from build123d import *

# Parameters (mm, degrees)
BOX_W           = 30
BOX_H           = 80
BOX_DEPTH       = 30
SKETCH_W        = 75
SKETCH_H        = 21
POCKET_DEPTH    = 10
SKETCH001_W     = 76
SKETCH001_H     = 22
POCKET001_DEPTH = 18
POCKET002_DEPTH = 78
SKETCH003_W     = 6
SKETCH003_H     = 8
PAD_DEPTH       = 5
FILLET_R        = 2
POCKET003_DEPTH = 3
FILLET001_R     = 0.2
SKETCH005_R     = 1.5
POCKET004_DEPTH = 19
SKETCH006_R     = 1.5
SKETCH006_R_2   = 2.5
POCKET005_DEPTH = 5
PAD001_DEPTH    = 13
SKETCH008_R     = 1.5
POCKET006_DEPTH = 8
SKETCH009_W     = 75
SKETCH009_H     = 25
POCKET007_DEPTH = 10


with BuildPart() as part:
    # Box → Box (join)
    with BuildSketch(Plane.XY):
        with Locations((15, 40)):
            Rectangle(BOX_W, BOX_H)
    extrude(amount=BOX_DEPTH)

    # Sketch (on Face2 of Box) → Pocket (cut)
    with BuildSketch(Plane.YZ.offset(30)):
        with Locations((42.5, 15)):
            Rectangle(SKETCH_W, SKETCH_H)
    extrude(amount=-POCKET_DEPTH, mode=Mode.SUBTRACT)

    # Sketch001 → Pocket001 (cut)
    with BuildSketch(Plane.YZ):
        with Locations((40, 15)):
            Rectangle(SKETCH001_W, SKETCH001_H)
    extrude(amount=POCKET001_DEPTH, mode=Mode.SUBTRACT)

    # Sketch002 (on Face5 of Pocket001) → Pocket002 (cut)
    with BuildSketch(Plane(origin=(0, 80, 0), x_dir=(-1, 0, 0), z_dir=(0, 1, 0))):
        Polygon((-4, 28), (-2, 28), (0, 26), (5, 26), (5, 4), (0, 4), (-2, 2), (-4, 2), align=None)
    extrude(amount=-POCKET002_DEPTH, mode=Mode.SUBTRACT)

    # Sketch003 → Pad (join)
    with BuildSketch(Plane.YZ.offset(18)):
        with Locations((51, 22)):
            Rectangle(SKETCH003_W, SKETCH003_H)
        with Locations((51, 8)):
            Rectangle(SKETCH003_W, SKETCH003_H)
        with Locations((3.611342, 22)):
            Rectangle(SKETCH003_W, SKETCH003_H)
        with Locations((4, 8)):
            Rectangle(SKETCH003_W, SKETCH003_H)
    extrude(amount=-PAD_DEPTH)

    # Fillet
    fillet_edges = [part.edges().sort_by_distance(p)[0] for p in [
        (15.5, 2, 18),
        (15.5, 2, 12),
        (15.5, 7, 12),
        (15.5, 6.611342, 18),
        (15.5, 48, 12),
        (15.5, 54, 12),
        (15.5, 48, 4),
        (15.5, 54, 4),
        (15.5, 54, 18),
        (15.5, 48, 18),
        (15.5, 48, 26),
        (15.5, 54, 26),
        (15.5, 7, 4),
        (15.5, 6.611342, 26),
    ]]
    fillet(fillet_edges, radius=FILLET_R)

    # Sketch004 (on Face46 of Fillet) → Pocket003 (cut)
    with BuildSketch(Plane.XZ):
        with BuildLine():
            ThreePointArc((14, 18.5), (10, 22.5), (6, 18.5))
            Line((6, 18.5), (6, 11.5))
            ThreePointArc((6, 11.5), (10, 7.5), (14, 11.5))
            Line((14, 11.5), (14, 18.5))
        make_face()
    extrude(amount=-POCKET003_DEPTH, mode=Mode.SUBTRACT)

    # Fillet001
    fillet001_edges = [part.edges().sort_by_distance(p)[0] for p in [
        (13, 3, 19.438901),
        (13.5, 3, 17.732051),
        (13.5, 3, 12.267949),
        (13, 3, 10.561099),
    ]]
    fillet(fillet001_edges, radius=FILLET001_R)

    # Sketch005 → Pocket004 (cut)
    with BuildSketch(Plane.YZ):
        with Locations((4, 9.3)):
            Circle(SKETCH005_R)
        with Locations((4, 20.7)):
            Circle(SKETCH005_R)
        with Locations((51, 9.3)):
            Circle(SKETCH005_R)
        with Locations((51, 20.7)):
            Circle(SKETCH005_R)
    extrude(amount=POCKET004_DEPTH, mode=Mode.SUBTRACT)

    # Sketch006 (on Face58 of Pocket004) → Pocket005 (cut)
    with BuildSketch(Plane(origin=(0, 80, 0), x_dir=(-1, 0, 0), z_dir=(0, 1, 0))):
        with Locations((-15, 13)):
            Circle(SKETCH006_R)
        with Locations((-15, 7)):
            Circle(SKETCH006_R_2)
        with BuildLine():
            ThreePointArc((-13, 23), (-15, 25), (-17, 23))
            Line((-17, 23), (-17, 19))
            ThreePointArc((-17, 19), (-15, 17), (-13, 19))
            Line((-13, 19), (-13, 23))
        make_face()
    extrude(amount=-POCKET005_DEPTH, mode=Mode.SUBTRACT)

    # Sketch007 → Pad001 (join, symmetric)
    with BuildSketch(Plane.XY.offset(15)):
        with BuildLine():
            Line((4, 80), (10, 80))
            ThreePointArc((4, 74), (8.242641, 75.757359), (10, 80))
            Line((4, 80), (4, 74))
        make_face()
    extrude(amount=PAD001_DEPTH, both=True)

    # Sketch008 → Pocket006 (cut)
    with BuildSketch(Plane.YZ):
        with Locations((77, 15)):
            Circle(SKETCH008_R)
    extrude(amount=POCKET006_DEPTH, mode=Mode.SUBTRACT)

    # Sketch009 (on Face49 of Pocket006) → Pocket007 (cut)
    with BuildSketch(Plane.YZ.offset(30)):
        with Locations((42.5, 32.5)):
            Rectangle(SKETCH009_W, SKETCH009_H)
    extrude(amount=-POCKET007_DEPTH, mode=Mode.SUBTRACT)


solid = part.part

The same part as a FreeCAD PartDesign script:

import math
import FreeCAD as App
import Part
import Sketcher
from FreeCAD import Vector


def edges_at(feature, points):
    """Names of the edges that pass closest to the given points."""
    edges = feature.Shape.Edges
    near = lambda p: min(range(len(edges)), key=lambda i: edges[i].distToShape(Part.Vertex(*p))[0])
    return sorted({f"Edge{near(p) + 1}" for p in points})


def add_polygon(sketch, points):
    """Adds a closed chain of lines whose ends are joined by coincident constraints."""
    first, n = sketch.GeometryCount, len(points)
    for a, b in zip(points, points[1:] + points[:1]):
        sketch.addGeometry(Part.LineSegment(App.Vector(*a, 0), App.Vector(*b, 0)), False)
    for i in range(n):
        sketch.addConstraint(Sketcher.Constraint("Coincident", first + i, 2, first + (i + 1) % n, 1))

doc = App.newDocument("Part")
body = doc.addObject("PartDesign::Body", "Body")

sketch1 = doc.addObject("Sketcher::SketchObject", "Sketch")
body.addObject(sketch1)
sketch1.AttachmentSupport = (doc.XY_Plane, [""])
sketch1.MapMode = "FlatFace"
add_polygon(sketch1, [(0, 80), (0, 0), (30, 0), (30, 80)])
sketch1.addConstraint([
    Sketcher.Constraint("Vertical", 0),
    Sketcher.Constraint("Horizontal", 1),
    Sketcher.Constraint("Vertical", 2),
    Sketcher.Constraint("Horizontal", 3),
    Sketcher.Constraint("Coincident", 0, 2, -1, 1),
    Sketcher.Constraint("DistanceX", 1, 1, 1, 2, 30.0),
    Sketcher.Constraint("DistanceY", 0, 2, 0, 1, 80.0),
])
pad1 = doc.addObject("PartDesign::Pad", "Pad")
body.addObject(pad1)
pad1.Profile = sketch1
pad1.Length = 30

sketch2 = doc.addObject("Sketcher::SketchObject", "Sketch001")
body.addObject(sketch2)
sketch2.AttachmentSupport = (doc.YZ_Plane, [""])
sketch2.MapMode = "FlatFace"
sketch2.AttachmentOffset = App.Placement(Vector(0, 0, 30), App.Rotation())
add_polygon(sketch2, [(5, 26), (5, 4), (80, 4), (80, 26)])
sketch2.addConstraint([
    Sketcher.Constraint("Vertical", 0),
    Sketcher.Constraint("Horizontal", 1),
    Sketcher.Constraint("Vertical", 2),
    Sketcher.Constraint("Horizontal", 3),
    Sketcher.Constraint("DistanceX", 1, 1, 1, 2, 75.0),
    Sketcher.Constraint("DistanceY", 0, 2, 0, 1, 21.0),
    Sketcher.Constraint("DistanceX", -1, 1, 0, 2, 5.0),
    Sketcher.Constraint("DistanceY", -1, 1, 0, 2, 4.5),
])
pocket1 = doc.addObject("PartDesign::Pocket", "Pocket")
body.addObject(pocket1)
pocket1.Profile = sketch2
pocket1.Length = 10

sketch3 = doc.addObject("Sketcher::SketchObject", "Sketch002")
body.addObject(sketch3)
sketch3.AttachmentSupport = (doc.YZ_Plane, [""])
sketch3.MapMode = "FlatFace"
add_polygon(sketch3, [(2, 26), (2, 4), (78, 4), (78, 26)])
sketch3.addConstraint([
    Sketcher.Constraint("Vertical", 0),
    Sketcher.Constraint("Horizontal", 1),
    Sketcher.Constraint("Vertical", 2),
    Sketcher.Constraint("Horizontal", 3),
    Sketcher.Constraint("DistanceX", 1, 1, 1, 2, 76.0),
    Sketcher.Constraint("DistanceY", 0, 2, 0, 1, 22.0),
    Sketcher.Constraint("DistanceX", -1, 1, 0, 2, 2.0),
    Sketcher.Constraint("DistanceY", -1, 1, 0, 2, 4.0),
])
pocket2 = doc.addObject("PartDesign::Pocket", "Pocket001")
body.addObject(pocket2)
pocket2.Profile = sketch3
pocket2.Length = 18
pocket2.Reversed = True

sketch4 = doc.addObject("Sketcher::SketchObject", "Sketch003")
body.addObject(sketch4)
sketch4.AttachmentSupport = (doc.XZ_Plane, [""])
sketch4.MapMode = "FlatFace"
sketch4.AttachmentOffset = App.Placement(Vector(0, 0, -80), App.Rotation())
add_polygon(sketch4, [(2, 28), (4, 28), (4, 2), (2, 2), (0, 4), (-5, 4), (-5, 26), (0, 26)])
sketch4.addConstraint([
    Sketcher.Constraint("Horizontal", 0),
    Sketcher.Constraint("Vertical", 1),
    Sketcher.Constraint("Horizontal", 2),
    Sketcher.Constraint("Horizontal", 4),
    Sketcher.Constraint("Vertical", 5),
    Sketcher.Constraint("Horizontal", 6),
    Sketcher.Constraint("PointOnObject", 3, 2, -2),
    Sketcher.Constraint("PointOnObject", 6, 2, -2),
    Sketcher.Constraint("Perpendicular", 3, 7),
    Sketcher.Constraint("Vertical", 2, 2, 7, 2),
    Sketcher.Constraint("Equal", 3, 7),
    Sketcher.Constraint("DistanceX", 0, 1, 0, 2, 2.0),
    Sketcher.Constraint("DistanceX", 4, 2, 4, 1, 5.0),
    Sketcher.Constraint("DistanceY", 1, 2, 1, 1, 26.0),
    Sketcher.Constraint("DistanceY", 5, 1, 5, 2, 22.0),
    Sketcher.Constraint("DistanceY", -1, 1, 0, 2, 28.0),
])
pocket3 = doc.addObject("PartDesign::Pocket", "Pocket002")
body.addObject(pocket3)
pocket3.Profile = sketch4
pocket3.Length = 78
pocket3.Reversed = True

sketch5 = doc.addObject("Sketcher::SketchObject", "Sketch004")
body.addObject(sketch5)
sketch5.AttachmentSupport = (doc.YZ_Plane, [""])
sketch5.MapMode = "FlatFace"
sketch5.AttachmentOffset = App.Placement(Vector(0, 0, 18), App.Rotation())
add_polygon(sketch5, [(48, 26), (48, 18), (54, 18), (54, 26)])
add_polygon(sketch5, [(48, 12), (48, 4), (54, 4), (54, 12)])
add_polygon(sketch5, [(1, 26), (1, 18), (7, 18), (7, 26)])
add_polygon(sketch5, [(1, 12), (1, 4), (7, 4), (7, 12)])
sketch5.addConstraint([
    Sketcher.Constraint("Vertical", 0),
    Sketcher.Constraint("Horizontal", 1),
    Sketcher.Constraint("Vertical", 2),
    Sketcher.Constraint("Horizontal", 3),
    Sketcher.Constraint("Vertical", 4),
    Sketcher.Constraint("Horizontal", 5),
    Sketcher.Constraint("Vertical", 6),
    Sketcher.Constraint("Horizontal", 7),
    Sketcher.Constraint("Vertical", 8),
    Sketcher.Constraint("Horizontal", 9),
    Sketcher.Constraint("Vertical", 10),
    Sketcher.Constraint("Horizontal", 11),
    Sketcher.Constraint("Vertical", 12),
    Sketcher.Constraint("Horizontal", 13),
    Sketcher.Constraint("Vertical", 14),
    Sketcher.Constraint("Horizontal", 15),
    Sketcher.Constraint("Horizontal", 1, 2, 8, 2),
    Sketcher.Constraint("Horizontal", 3, 2, 10, 2),
    Sketcher.Constraint("Horizontal", 5, 2, 12, 2),
    Sketcher.Constraint("Horizontal", 7, 2, 14, 2),
    Sketcher.Constraint("Vertical", 3, 2, 4, 2),
    Sketcher.Constraint("Vertical", 2, 2, 5, 2),
    Sketcher.Constraint("Equal", 7, 9),
    Sketcher.Constraint("Equal", 11, 13),
    Sketcher.Constraint("Equal", 2, 4),
    Sketcher.Constraint("DistanceX", 1, 1, 1, 2, 6.0),
    Sketcher.Constraint("DistanceY", 0, 2, 0, 1, 8.0),
    Sketcher.Constraint("DistanceX", -1, 1, 0, 2, 48.0),
    Sketcher.Constraint("DistanceY", -1, 1, 0, 2, 18.0),
    Sketcher.Constraint("DistanceY", -1, 1, 4, 2, 4.0),
    Sketcher.Constraint("DistanceX", -1, 1, 12, 2, 1.0),
    Sketcher.Constraint("DistanceX", -1, 1, 9, 2, 6.611342),
])
pad2 = doc.addObject("PartDesign::Pad", "Pad001")
body.addObject(pad2)
pad2.Profile = sketch5
pad2.Length = 5
pad2.Reversed = True
doc.recompute()

fillet = doc.addObject("PartDesign::Fillet", "Fillet")
body.addObject(fillet)
fillet.Base = (pad2, edges_at(pad2, [
    (15.5, 2, 18),
    (15.5, 2, 12),
    (15.5, 7, 12),
    (15.5, 6.611, 18),
    (15.5, 48, 12),
    (15.5, 54, 12),
    (15.5, 48, 4),
    (15.5, 54, 4),
    (15.5, 54, 18),
    (15.5, 48, 18),
    (15.5, 48, 26),
    (15.5, 54, 26),
    (15.5, 7, 4),
    (15.5, 6.611, 26),
]))
fillet.Radius = 2

sketch6 = doc.addObject("Sketcher::SketchObject", "Sketch005")
body.addObject(sketch6)
sketch6.AttachmentSupport = (doc.XZ_Plane, [""])
sketch6.MapMode = "FlatFace"
sketch6.addGeometry([
    Part.ArcOfCircle(Part.Circle(Vector(10, 18.5, 0), Vector(0, 0, 1), 4), math.radians(0), math.radians(180)),
    Part.LineSegment(Vector(6, 18.5, 0), Vector(6, 11.5, 0)),
    Part.ArcOfCircle(Part.Circle(Vector(10, 11.5, 0), Vector(0, 0, 1), 4), math.radians(180), math.radians(360)),
    Part.LineSegment(Vector(14, 11.5, 0), Vector(14, 18.5, 0)),
], False)
sketch6.addConstraint([
    Sketcher.Constraint("Tangent", 0, 2, 1, 1),
    Sketcher.Constraint("Tangent", 1, 2, 2, 1),
    Sketcher.Constraint("Tangent", 2, 2, 3, 1),
    Sketcher.Constraint("Tangent", 3, 2, 0, 1),
    Sketcher.Constraint("Vertical", 1),
    Sketcher.Constraint("Vertical", 3),
    Sketcher.Constraint("Radius", 0, 4.0),
    Sketcher.Constraint("DistanceY", 1, 2, 1, 1, 7.0),
    Sketcher.Constraint("DistanceX", -1, 1, 0, 3, 10.0),
    Sketcher.Constraint("DistanceY", -1, 1, 0, 3, 18.5),
])
pocket4 = doc.addObject("PartDesign::Pocket", "Pocket003")
body.addObject(pocket4)
pocket4.Profile = sketch6
pocket4.Length = 3
doc.recompute()

fillet2 = doc.addObject("PartDesign::Fillet", "Fillet001")
body.addObject(fillet2)
fillet2.Base = (pocket4, edges_at(pocket4, [
    (13, 3, 19.439),
    (13.5, 3, 17.732),
    (13.5, 3, 12.268),
    (13, 3, 10.561),
]))
fillet2.Radius = 0.2

sketch7 = doc.addObject("Sketcher::SketchObject", "Sketch006")
body.addObject(sketch7)
sketch7.AttachmentSupport = (doc.YZ_Plane, [""])
sketch7.MapMode = "FlatFace"
sketch7.addGeometry([
    Part.Circle(Vector(4, 9.3, 0), Vector(0, 0, 1), 1.5),
    Part.Circle(Vector(4, 20.7, 0), Vector(0, 0, 1), 1.5),
    Part.Circle(Vector(51, 9.3, 0), Vector(0, 0, 1), 1.5),
    Part.Circle(Vector(51, 20.7, 0), Vector(0, 0, 1), 1.5),
], False)
sketch7.addConstraint([
    Sketcher.Constraint("Equal", 0, 1),
    Sketcher.Constraint("Equal", 1, 2),
    Sketcher.Constraint("Equal", 2, 3),
    Sketcher.Constraint("Horizontal", 0, 3, 2, 3),
    Sketcher.Constraint("Horizontal", 1, 3, 3, 3),
    Sketcher.Constraint("Vertical", 0, 3, 1, 3),
    Sketcher.Constraint("Vertical", 2, 3, 3, 3),
    Sketcher.Constraint("Diameter", 0, 3.0),
    Sketcher.Constraint("DistanceX", -1, 1, 0, 3, 4.0),
    Sketcher.Constraint("DistanceX", -1, 1, 2, 3, 51.0),
    Sketcher.Constraint("DistanceY", -1, 1, 0, 3, 9.3),
    Sketcher.Constraint("DistanceY", -1, 1, 1, 3, 20.7),
])
pocket5 = doc.addObject("PartDesign::Pocket", "Pocket004")
body.addObject(pocket5)
pocket5.Profile = sketch7
pocket5.Length = 19
pocket5.Reversed = True

sketch8 = doc.addObject("Sketcher::SketchObject", "Sketch007")
body.addObject(sketch8)
sketch8.AttachmentSupport = (doc.XZ_Plane, [""])
sketch8.MapMode = "FlatFace"
sketch8.AttachmentOffset = App.Placement(Vector(0, 0, -80), App.Rotation())
sketch8.addGeometry([
    Part.Circle(Vector(15, 13, 0), Vector(0, 0, 1), 1.5),
    Part.Circle(Vector(15, 7, 0), Vector(0, 0, 1), 2.5),
    Part.ArcOfCircle(Part.Circle(Vector(15, 23, 0), Vector(0, 0, 1), 2), math.radians(0), math.radians(180)),
    Part.LineSegment(Vector(17, 23, 0), Vector(17, 19, 0)),
    Part.ArcOfCircle(Part.Circle(Vector(15, 19, 0), Vector(0, 0, 1), 2), math.radians(180), math.radians(360)),
    Part.LineSegment(Vector(13, 19, 0), Vector(13, 23, 0)),
], False)
sketch8.addConstraint([
    Sketcher.Constraint("Tangent", 2, 1, 3, 1),
    Sketcher.Constraint("Tangent", 3, 2, 4, 2),
    Sketcher.Constraint("Tangent", 4, 1, 5, 1),
    Sketcher.Constraint("Tangent", 5, 2, 2, 2),
    Sketcher.Constraint("Vertical", 3),
    Sketcher.Constraint("Vertical", 5),
    Sketcher.Constraint("Vertical", 0, 3, 1, 3),
    Sketcher.Constraint("Vertical", 1, 3, 2, 3),
    Sketcher.Constraint("Diameter", 0, 3.0),
    Sketcher.Constraint("Diameter", 1, 5.0),
    Sketcher.Constraint("Radius", 2, 2.0),
    Sketcher.Constraint("DistanceY", 3, 2, 3, 1, 4.0),
    Sketcher.Constraint("DistanceX", -1, 1, 0, 3, 15.0),
    Sketcher.Constraint("DistanceY", -1, 1, 0, 3, 13.0),
    Sketcher.Constraint("DistanceY", -1, 1, 1, 3, 7.0),
    Sketcher.Constraint("DistanceY", -1, 1, 2, 3, 23.0),
])
pocket6 = doc.addObject("PartDesign::Pocket", "Pocket005")
body.addObject(pocket6)
pocket6.Profile = sketch8
pocket6.Length = 5
pocket6.Reversed = True

sketch9 = doc.addObject("Sketcher::SketchObject", "Sketch008")
body.addObject(sketch9)
sketch9.AttachmentSupport = (doc.XY_Plane, [""])
sketch9.MapMode = "FlatFace"
sketch9.AttachmentOffset = App.Placement(Vector(0, 0, 15), App.Rotation())
sketch9.addGeometry([
    Part.LineSegment(Vector(10, 80, 0), Vector(4, 80, 0)),
    Part.LineSegment(Vector(4, 80, 0), Vector(4, 74, 0)),
    Part.ArcOfCircle(Part.Circle(Vector(4, 80, 0), Vector(0, 0, 1), 6), math.radians(-90), math.radians(0)),
], False)
sketch9.addConstraint([
    Sketcher.Constraint("Coincident", 0, 2, 1, 1),
    Sketcher.Constraint("Coincident", 1, 2, 2, 1),
    Sketcher.Constraint("Coincident", 2, 2, 0, 1),
    Sketcher.Constraint("Horizontal", 0),
    Sketcher.Constraint("Vertical", 1),
    Sketcher.Constraint("Coincident", 0, 2, 2, 3),
    Sketcher.Constraint("Radius", 2, 5.999999),
    Sketcher.Constraint("DistanceX", -1, 1, 2, 3, 4.000001),
    Sketcher.Constraint("DistanceY", -1, 1, 2, 3, 79.999999),
])
pad3 = doc.addObject("PartDesign::Pad", "Pad002")
body.addObject(pad3)
pad3.Profile = sketch9
pad3.Length = 26
pad3.Midplane = True

sketch10 = doc.addObject("Sketcher::SketchObject", "Sketch009")
body.addObject(sketch10)
sketch10.AttachmentSupport = (doc.YZ_Plane, [""])
sketch10.MapMode = "FlatFace"
sketch10.addGeometry(Part.Circle(Vector(77, 15, 0), Vector(0, 0, 1), 1.5), False)
sketch10.addConstraint([
    Sketcher.Constraint("Diameter", 0, 3.0),
    Sketcher.Constraint("DistanceX", -1, 1, 0, 3, 77.0),
    Sketcher.Constraint("DistanceY", -1, 1, 0, 3, 15.0),
])
pocket7 = doc.addObject("PartDesign::Pocket", "Pocket006")
body.addObject(pocket7)
pocket7.Profile = sketch10
pocket7.Length = 8
pocket7.Reversed = True

sketch11 = doc.addObject("Sketcher::SketchObject", "Sketch010")
body.addObject(sketch11)
sketch11.AttachmentSupport = (doc.YZ_Plane, [""])
sketch11.MapMode = "FlatFace"
sketch11.AttachmentOffset = App.Placement(Vector(0, 0, 30), App.Rotation())
add_polygon(sketch11, [(5, 45), (5, 20), (80, 20), (80, 45)])
sketch11.addConstraint([
    Sketcher.Constraint("Vertical", 0),
    Sketcher.Constraint("Horizontal", 1),
    Sketcher.Constraint("Vertical", 2),
    Sketcher.Constraint("Horizontal", 3),
    Sketcher.Constraint("DistanceX", 1, 1, 1, 2, 75.0),
    Sketcher.Constraint("DistanceY", 0, 2, 0, 1, 25.0),
    Sketcher.Constraint("DistanceX", -1, 1, 0, 2, 5.0),
    Sketcher.Constraint("DistanceY", -1, 1, 0, 2, 20.0),
])
pocket8 = doc.addObject("PartDesign::Pocket", "Pocket007")
body.addObject(pocket8)
pocket8.Profile = sketch11
pocket8.Length = 10

doc.recompute()
